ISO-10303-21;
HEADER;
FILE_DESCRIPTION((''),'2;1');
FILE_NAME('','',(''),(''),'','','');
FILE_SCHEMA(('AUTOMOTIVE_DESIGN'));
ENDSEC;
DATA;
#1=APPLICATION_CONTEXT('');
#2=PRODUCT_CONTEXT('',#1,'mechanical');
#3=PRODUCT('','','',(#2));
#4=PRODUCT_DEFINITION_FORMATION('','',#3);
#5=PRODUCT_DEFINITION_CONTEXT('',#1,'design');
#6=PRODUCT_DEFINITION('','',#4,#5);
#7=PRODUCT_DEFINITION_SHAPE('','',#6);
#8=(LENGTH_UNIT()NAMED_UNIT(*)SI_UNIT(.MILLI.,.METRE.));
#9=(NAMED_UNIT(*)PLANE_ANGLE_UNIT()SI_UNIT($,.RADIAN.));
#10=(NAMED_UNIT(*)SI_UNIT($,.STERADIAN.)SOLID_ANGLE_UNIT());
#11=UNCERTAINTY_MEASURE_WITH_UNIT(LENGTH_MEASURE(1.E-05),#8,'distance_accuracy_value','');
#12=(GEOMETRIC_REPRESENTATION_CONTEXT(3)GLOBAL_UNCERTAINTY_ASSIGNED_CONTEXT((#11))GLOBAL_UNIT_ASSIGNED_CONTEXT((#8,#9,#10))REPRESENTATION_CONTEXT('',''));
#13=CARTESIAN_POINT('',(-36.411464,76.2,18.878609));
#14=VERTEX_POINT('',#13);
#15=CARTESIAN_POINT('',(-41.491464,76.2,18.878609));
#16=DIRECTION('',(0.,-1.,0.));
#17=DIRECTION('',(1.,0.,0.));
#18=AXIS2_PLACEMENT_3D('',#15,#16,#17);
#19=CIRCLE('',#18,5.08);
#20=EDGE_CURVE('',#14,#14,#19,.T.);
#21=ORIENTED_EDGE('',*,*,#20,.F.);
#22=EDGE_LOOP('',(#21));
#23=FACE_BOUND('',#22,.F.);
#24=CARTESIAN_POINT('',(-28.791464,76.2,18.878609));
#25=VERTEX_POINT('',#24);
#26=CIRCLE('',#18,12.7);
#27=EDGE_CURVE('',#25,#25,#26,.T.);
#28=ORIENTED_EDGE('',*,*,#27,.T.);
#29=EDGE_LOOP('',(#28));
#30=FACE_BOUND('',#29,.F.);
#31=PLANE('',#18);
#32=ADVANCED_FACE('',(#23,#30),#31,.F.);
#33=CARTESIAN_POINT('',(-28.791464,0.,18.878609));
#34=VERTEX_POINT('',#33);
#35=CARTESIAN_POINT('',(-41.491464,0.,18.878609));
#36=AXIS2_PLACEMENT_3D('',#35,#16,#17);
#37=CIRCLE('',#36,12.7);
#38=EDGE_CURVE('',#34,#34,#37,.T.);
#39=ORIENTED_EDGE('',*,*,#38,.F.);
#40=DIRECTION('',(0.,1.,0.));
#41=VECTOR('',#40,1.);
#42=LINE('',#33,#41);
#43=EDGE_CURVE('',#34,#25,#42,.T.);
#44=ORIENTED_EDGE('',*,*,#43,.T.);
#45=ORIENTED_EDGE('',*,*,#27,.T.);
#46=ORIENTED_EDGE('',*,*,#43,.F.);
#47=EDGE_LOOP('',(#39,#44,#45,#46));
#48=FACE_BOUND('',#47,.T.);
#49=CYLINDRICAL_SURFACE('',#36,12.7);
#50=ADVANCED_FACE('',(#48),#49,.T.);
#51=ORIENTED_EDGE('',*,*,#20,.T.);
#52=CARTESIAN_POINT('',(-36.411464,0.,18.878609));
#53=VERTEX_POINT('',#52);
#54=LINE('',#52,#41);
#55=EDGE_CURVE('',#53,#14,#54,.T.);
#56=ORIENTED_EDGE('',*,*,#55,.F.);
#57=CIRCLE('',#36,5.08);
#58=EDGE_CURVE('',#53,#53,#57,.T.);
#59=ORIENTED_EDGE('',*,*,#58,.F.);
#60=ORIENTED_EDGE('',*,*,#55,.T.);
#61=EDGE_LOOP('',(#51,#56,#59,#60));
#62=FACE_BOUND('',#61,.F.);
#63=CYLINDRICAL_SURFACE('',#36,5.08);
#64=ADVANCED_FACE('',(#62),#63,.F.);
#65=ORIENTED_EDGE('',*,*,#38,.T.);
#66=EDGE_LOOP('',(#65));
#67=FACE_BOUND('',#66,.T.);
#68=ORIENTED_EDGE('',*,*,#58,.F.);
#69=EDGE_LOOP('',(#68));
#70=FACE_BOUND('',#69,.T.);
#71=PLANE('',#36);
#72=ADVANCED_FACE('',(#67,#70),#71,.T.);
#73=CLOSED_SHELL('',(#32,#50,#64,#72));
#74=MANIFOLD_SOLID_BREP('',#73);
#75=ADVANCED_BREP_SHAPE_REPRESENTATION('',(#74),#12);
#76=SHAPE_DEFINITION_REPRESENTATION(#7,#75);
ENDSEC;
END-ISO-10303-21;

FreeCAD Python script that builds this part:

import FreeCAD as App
import Part
import Sketcher
Q = App.Units.Quantity

doc = App.newDocument("Part")
body = doc.addObject("PartDesign::Body", "Body")

# Sketch on XZ plane
sketch1 = body.newObject("Sketcher::SketchObject", "Sketch")
sketch1.AttachmentSupport = (doc.getObject("XZ_Plane"), [""])
sketch1.MapMode = "FlatFace"
sketch1.addGeometry([
    Part.Circle(App.Vector(-41, 19, 0), App.Vector(0, 0, 1), 13),
    Part.Circle(App.Vector(-41, 19, 0), App.Vector(0, 0, 1), 5),
], False)
sketch1.addConstraint([
    Sketcher.Constraint("Coincident", 1, 3, 0, 3),
    Sketcher.Constraint("Diameter", 0, Q("1 in")),
    Sketcher.Constraint("Diameter", 1, Q("0.4 in")),
    Sketcher.Constraint("DistanceY", -1, 1, 0, 3, 18.878609),
    Sketcher.Constraint("DistanceX", 0, 3, -1, 1, 41.491464),
])
pad1 = body.newObject("PartDesign::Pad", "Pad")
pad1.Profile = sketch1
pad1.Length = Q("3 in")
pad1.Reversed = True

doc.recompute()
